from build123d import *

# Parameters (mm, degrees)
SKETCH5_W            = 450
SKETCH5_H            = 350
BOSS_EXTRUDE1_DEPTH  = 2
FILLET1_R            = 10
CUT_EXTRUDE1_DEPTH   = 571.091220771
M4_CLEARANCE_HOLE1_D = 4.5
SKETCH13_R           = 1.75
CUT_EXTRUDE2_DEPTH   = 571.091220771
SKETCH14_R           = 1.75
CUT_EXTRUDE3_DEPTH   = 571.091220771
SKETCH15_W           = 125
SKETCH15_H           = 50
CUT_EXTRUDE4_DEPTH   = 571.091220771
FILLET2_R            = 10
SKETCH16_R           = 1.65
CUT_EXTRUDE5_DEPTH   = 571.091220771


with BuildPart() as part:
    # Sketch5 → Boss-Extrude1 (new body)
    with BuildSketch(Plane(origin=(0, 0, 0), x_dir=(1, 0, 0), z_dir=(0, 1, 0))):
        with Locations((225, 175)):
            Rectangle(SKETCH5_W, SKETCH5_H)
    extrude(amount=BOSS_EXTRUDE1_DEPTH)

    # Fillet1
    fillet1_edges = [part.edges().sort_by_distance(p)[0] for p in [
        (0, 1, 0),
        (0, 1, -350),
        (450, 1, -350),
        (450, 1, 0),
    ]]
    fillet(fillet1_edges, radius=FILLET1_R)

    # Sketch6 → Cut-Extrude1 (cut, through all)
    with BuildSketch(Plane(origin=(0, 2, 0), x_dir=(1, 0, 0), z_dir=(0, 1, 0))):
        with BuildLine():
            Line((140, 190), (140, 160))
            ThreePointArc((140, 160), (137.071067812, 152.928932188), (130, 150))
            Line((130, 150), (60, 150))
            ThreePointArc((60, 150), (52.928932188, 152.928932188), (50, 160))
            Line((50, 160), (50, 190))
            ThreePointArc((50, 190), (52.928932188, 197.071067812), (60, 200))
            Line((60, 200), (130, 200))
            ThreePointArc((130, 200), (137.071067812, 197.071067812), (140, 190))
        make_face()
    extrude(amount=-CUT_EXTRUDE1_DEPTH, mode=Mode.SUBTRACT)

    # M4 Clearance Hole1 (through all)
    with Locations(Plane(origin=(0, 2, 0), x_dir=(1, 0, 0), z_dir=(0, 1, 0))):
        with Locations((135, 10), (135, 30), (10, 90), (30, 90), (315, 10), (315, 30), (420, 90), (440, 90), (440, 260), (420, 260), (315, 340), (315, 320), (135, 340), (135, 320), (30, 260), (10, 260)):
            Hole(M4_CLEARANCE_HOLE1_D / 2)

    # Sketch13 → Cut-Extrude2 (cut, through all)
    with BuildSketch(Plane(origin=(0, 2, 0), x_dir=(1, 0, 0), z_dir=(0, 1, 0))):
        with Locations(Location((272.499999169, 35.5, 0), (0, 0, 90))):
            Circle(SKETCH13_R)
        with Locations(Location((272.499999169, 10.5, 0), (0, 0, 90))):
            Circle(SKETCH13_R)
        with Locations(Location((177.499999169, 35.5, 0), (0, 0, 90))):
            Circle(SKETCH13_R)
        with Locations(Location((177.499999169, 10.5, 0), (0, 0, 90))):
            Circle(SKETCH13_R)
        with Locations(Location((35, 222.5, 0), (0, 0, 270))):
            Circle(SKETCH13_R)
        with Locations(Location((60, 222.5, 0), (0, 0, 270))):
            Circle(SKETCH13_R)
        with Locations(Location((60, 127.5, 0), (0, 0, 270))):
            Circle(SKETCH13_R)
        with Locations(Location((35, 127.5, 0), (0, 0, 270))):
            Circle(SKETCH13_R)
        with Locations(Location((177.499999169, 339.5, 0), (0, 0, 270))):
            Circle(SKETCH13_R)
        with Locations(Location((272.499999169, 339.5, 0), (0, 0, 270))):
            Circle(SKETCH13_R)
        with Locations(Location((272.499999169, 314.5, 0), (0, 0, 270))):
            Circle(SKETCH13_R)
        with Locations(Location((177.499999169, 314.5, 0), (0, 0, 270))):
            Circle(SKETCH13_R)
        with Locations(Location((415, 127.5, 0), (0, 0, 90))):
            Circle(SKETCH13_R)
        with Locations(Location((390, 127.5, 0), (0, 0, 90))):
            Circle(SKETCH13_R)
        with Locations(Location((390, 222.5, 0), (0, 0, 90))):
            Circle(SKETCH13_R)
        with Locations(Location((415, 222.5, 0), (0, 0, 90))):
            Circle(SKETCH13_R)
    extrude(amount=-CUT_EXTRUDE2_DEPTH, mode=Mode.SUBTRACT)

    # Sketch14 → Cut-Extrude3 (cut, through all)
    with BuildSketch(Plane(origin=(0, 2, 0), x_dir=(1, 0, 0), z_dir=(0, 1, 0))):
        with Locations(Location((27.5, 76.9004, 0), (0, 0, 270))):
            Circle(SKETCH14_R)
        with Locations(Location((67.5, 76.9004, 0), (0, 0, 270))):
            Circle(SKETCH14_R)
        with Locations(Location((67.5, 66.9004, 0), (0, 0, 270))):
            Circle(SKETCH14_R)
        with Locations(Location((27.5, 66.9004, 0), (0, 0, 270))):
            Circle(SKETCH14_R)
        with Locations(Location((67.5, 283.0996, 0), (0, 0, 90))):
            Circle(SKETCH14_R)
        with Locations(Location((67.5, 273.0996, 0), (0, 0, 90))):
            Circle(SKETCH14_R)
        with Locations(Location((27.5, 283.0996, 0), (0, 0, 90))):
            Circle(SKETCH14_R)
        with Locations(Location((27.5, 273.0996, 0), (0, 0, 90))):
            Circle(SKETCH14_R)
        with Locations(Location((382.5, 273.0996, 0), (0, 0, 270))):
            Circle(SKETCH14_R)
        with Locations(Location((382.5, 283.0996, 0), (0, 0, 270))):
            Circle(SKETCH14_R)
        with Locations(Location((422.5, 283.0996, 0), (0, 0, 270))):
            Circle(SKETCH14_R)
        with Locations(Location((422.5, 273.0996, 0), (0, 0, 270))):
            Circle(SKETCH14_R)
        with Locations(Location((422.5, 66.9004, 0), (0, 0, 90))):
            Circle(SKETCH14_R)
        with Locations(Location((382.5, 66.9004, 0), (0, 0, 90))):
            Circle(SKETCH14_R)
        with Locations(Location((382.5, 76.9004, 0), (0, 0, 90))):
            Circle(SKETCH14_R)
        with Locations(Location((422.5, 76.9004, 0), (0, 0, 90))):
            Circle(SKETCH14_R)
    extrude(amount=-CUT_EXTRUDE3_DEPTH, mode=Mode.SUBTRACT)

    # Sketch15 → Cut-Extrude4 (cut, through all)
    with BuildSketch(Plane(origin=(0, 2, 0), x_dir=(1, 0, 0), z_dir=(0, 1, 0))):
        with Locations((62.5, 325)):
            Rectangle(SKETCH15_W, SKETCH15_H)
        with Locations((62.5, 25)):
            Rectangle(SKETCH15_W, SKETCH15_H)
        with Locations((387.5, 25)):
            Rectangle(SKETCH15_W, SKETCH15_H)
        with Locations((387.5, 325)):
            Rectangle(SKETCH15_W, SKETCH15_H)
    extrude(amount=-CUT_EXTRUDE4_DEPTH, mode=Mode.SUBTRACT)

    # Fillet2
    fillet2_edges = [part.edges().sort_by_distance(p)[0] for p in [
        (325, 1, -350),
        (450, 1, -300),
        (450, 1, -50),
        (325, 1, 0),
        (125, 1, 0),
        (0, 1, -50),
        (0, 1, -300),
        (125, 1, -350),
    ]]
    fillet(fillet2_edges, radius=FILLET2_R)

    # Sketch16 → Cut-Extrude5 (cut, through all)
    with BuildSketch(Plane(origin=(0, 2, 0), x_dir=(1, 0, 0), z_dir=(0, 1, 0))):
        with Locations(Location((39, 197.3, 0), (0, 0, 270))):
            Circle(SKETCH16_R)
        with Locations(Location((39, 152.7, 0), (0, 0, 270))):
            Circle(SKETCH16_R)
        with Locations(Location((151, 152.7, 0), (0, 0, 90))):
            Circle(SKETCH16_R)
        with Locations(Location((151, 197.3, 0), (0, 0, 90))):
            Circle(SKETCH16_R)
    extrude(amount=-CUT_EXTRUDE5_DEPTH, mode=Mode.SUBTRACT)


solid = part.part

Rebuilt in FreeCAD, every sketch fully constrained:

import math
import FreeCAD as App
import Part
import Sketcher

V = App.Vector


def edges_at(feature, points):
    """Names of the edges that pass closest to the given points."""
    edges = feature.Shape.Edges
    near = lambda p: min(range(len(edges)), key=lambda i: edges[i].distToShape(Part.Vertex(*p))[0])
    return sorted({f"Edge{near(p) + 1}" for p in points})


def add_polygon(sketch, points):
    """Adds a closed chain of lines whose ends are joined by coincident constraints."""
    first, n = sketch.GeometryCount, len(points)
    for a, b in zip(points, points[1:] + points[:1]):
        sketch.addGeometry(Part.LineSegment(App.Vector(*a, 0), App.Vector(*b, 0)), False)
    for i in range(n):
        sketch.addConstraint(Sketcher.Constraint("Coincident", first + i, 2, first + (i + 1) % n, 1))

doc = App.newDocument("Part")
body = doc.addObject("PartDesign::Body", "Body")

sketch1 = body.newObject("Sketcher::SketchObject", "Sketch")
sketch1.AttachmentSupport = (doc.getObject("XZ_Plane"), [""])
sketch1.MapMode = "FlatFace"
add_polygon(sketch1, [(0, -350), (0, 0), (450, 0), (450, -350)])
sketch1.addConstraint([
    Sketcher.Constraint("Vertical", 0),
    Sketcher.Constraint("Horizontal", 1),
    Sketcher.Constraint("Vertical", 2),
    Sketcher.Constraint("Horizontal", 3),
    Sketcher.Constraint("Coincident", 0, 2, -1, 1),
    Sketcher.Constraint("DistanceX", 1, 1, 1, 2, 450.0),
    Sketcher.Constraint("DistanceY", 0, 1, 0, 2, 350.0),
])
pad1 = body.newObject("PartDesign::Pad", "Pad")
pad1.Profile = sketch1
pad1.Length = 2
pad1.Reversed = True
doc.recompute()

fillet = body.newObject("PartDesign::Fillet", "Fillet")
fillet.Base = (pad1, edges_at(pad1, [
    (0, 1, 0),
    (0, 1, -350),
    (450, 1, -350),
    (450, 1, 0),
]))
fillet.Radius = 10

sketch2 = body.newObject("Sketcher::SketchObject", "Sketch001")
sketch2.AttachmentSupport = (doc.getObject("XZ_Plane"), [""])
sketch2.MapMode = "FlatFace"
sketch2.AttachmentOffset = App.Placement(V(0, 0, -2), App.Rotation())
sketch2.addGeometry([
    Part.LineSegment(V(140, -160, 0), V(140, -190, 0)),
    Part.ArcOfCircle(Part.Circle(V(130, -190, 0), V(0, 0, 1), 10), math.radians(-90), math.radians(0)),
    Part.LineSegment(V(130, -200, 0), V(60, -200, 0)),
    Part.ArcOfCircle(Part.Circle(V(60, -190, 0), V(0, 0, 1), 10), math.radians(180), math.radians(270)),
    Part.LineSegment(V(50, -190, 0), V(50, -160, 0)),
    Part.ArcOfCircle(Part.Circle(V(60, -160, 0), V(0, 0, 1), 10), math.radians(90), math.radians(180)),
    Part.LineSegment(V(60, -150, 0), V(130, -150, 0)),
    Part.ArcOfCircle(Part.Circle(V(130, -160, 0), V(0, 0, 1), 10), math.radians(0), math.radians(90)),
], False)
sketch2.addConstraint([
    Sketcher.Constraint("Tangent", 0, 2, 1, 2),
    Sketcher.Constraint("Tangent", 1, 1, 2, 1),
    Sketcher.Constraint("Tangent", 2, 2, 3, 2),
    Sketcher.Constraint("Tangent", 3, 1, 4, 1),
    Sketcher.Constraint("Tangent", 4, 2, 5, 2),
    Sketcher.Constraint("Tangent", 5, 1, 6, 1),
    Sketcher.Constraint("Tangent", 6, 2, 7, 2),
    Sketcher.Constraint("Tangent", 7, 1, 0, 1),
    Sketcher.Constraint("Vertical", 0),
    Sketcher.Constraint("Horizontal", 2),
    Sketcher.Constraint("Vertical", 4),
    Sketcher.Constraint("Horizontal", 6),
    Sketcher.Constraint("Equal", 1, 3),
    Sketcher.Constraint("Equal", 3, 5),
    Sketcher.Constraint("Equal", 5, 7),
    Sketcher.Constraint("Radius", 1, 10.0),
    Sketcher.Constraint("DistanceX", 2, 2, 2, 1, 70.0),
    Sketcher.Constraint("DistanceY", 0, 2, 0, 1, 30.0),
    Sketcher.Constraint("DistanceX", -1, 1, 1, 3, 130.0),
    Sketcher.Constraint("DistanceY", 1, 3, -1, 1, 190.0),
])
pocket1 = body.newObject("PartDesign::Pocket", "Pocket")
pocket1.Profile = sketch2
pocket1.Type = "ThroughAll"
pocket1.Reversed = True

sketch3 = body.newObject("Sketcher::SketchObject", "Sketch002")
sketch3.AttachmentSupport = (doc.getObject("XZ_Plane"), [""])
sketch3.MapMode = "FlatFace"
sketch3.AttachmentOffset = App.Placement(V(0, 0, -2), App.Rotation())
sketch3.addGeometry([
    Part.Circle(V(135, -10, 0), V(0, 0, 1), 2.2),
    Part.Circle(V(135, -30, 0), V(0, 0, 1), 2.2),
    Part.Circle(V(10, -90, 0), V(0, 0, 1), 2.2),
    Part.Circle(V(30, -90, 0), V(0, 0, 1), 2.2),
    Part.Circle(V(315, -10, 0), V(0, 0, 1), 2.2),
    Part.Circle(V(315, -30, 0), V(0, 0, 1), 2.2),
    Part.Circle(V(420, -90, 0), V(0, 0, 1), 2.2),
    Part.Circle(V(440, -90, 0), V(0, 0, 1), 2.2),
    Part.Circle(V(440, -260, 0), V(0, 0, 1), 2.2),
    Part.Circle(V(420, -260, 0), V(0, 0, 1), 2.2),
    Part.Circle(V(315, -340, 0), V(0, 0, 1), 2.2),
    Part.Circle(V(315, -320, 0), V(0, 0, 1), 2.2),
    Part.Circle(V(135, -340, 0), V(0, 0, 1), 2.2),
    Part.Circle(V(135, -320, 0), V(0, 0, 1), 2.2),
    Part.Circle(V(30, -260, 0), V(0, 0, 1), 2.2),
    Part.Circle(V(10, -260, 0), V(0, 0, 1), 2.2),
], False)
sketch3.addConstraint([
    Sketcher.Constraint("Equal", 0, 1),
    Sketcher.Constraint("Equal", 1, 2),
    Sketcher.Constraint("Equal", 2, 3),
    Sketcher.Constraint("Equal", 3, 4),
    Sketcher.Constraint("Equal", 4, 5),
    Sketcher.Constraint("Equal", 5, 6),
    Sketcher.Constraint("Equal", 6, 7),
    Sketcher.Constraint("Equal", 7, 8),
    Sketcher.Constraint("Equal", 8, 9),
    Sketcher.Constraint("Equal", 9, 10),
    Sketcher.Constraint("Equal", 10, 11),
    Sketcher.Constraint("Equal", 11, 12),
    Sketcher.Constraint("Equal", 12, 13),
    Sketcher.Constraint("Equal", 13, 14),
    Sketcher.Constraint("Equal", 14, 15),
    Sketcher.Constraint("Horizontal", 2, 3, 3, 3),
    Sketcher.Constraint("Horizontal", 0, 3, 4, 3),
    Sketcher.Constraint("Horizontal", 1, 3, 5, 3),
    Sketcher.Constraint("Horizontal", 3, 3, 6, 3),
    Sketcher.Constraint("Horizontal", 6, 3, 7, 3),
    Sketcher.Constraint("Horizontal", 8, 3, 9, 3),
    Sketcher.Constraint("Horizontal", 10, 3, 12, 3),
    Sketcher.Constraint("Horizontal", 11, 3, 13, 3),
    Sketcher.Constraint("Horizontal", 9, 3, 14, 3),
    Sketcher.Constraint("Horizontal", 14, 3, 15, 3),
    Sketcher.Constraint("Vertical", 0, 3, 1, 3),
    Sketcher.Constraint("Vertical", 4, 3, 5, 3),
    Sketcher.Constraint("Vertical", 7, 3, 8, 3),
    Sketcher.Constraint("Vertical", 6, 3, 9, 3),
    Sketcher.Constraint("Vertical", 5, 3, 10, 3),
    Sketcher.Constraint("Vertical", 10, 3, 11, 3),
    Sketcher.Constraint("Vertical", 1, 3, 12, 3),
    Sketcher.Constraint("Vertical", 12, 3, 13, 3),
    Sketcher.Constraint("Vertical", 3, 3, 14, 3),
    Sketcher.Constraint("Vertical", 2, 3, 15, 3),
    Sketcher.Constraint("Diameter", 0, 4.5),
    Sketcher.Constraint("DistanceX", -1, 1, 0, 3, 135.0),
    Sketcher.Constraint("DistanceY", 0, 3, -1, 1, 10.0),
    Sketcher.Constraint("DistanceY", 1, 3, -1, 1, 30.0),
    Sketcher.Constraint("DistanceX", -1, 1, 2, 3, 10.0),
    Sketcher.Constraint("DistanceY", 2, 3, -1, 1, 90.0),
    Sketcher.Constraint("DistanceX", -1, 1, 3, 3, 30.0),
    Sketcher.Constraint("DistanceX", -1, 1, 4, 3, 315.0),
    Sketcher.Constraint("DistanceX", -1, 1, 6, 3, 420.0),
    Sketcher.Constraint("DistanceX", -1, 1, 7, 3, 440.0),
    Sketcher.Constraint("DistanceY", 8, 3, -1, 1, 260.0),
    Sketcher.Constraint("DistanceY", 10, 3, -1, 1, 340.0),
    Sketcher.Constraint("DistanceY", 11, 3, -1, 1, 320.0),
])
doc.recompute()
hole = body.newObject("PartDesign::Hole", "Hole")
hole.Profile = sketch3
hole.ThreadType = "None"
hole.Diameter = 4.5
hole.DepthType = "ThroughAll"
hole.Reversed = True

sketch4 = body.newObject("Sketcher::SketchObject", "Sketch003")
sketch4.AttachmentSupport = (doc.getObject("XZ_Plane"), [""])
sketch4.MapMode = "FlatFace"
sketch4.AttachmentOffset = App.Placement(V(0, 0, -2), App.Rotation())
sketch4.addGeometry([
    Part.Circle(V(272.5, -35.5, 0), V(0, 0, 1), 1.8),
    Part.Circle(V(272.5, -10.5, 0), V(0, 0, 1), 1.8),
    Part.Circle(V(177.5, -35.5, 0), V(0, 0, 1), 1.8),
    Part.Circle(V(177.5, -10.5, 0), V(0, 0, 1), 1.8),
    Part.Circle(V(35, -222.5, 0), V(0, 0, 1), 1.8),
    Part.Circle(V(60, -222.5, 0), V(0, 0, 1), 1.8),
    Part.Circle(V(60, -127.5, 0), V(0, 0, 1), 1.8),
    Part.Circle(V(35, -127.5, 0), V(0, 0, 1), 1.8),
    Part.Circle(V(177.5, -339.5, 0), V(0, 0, 1), 1.8),
    Part.Circle(V(272.5, -339.5, 0), V(0, 0, 1), 1.8),
    Part.Circle(V(272.5, -314.5, 0), V(0, 0, 1), 1.8),
    Part.Circle(V(177.5, -314.5, 0), V(0, 0, 1), 1.8),
    Part.Circle(V(415, -127.5, 0), V(0, 0, 1), 1.8),
    Part.Circle(V(390, -127.5, 0), V(0, 0, 1), 1.8),
    Part.Circle(V(390, -222.5, 0), V(0, 0, 1), 1.8),
    Part.Circle(V(415, -222.5, 0), V(0, 0, 1), 1.8),
], False)
sketch4.addConstraint([
    Sketcher.Constraint("Equal", 0, 1),
    Sketcher.Constraint("Equal", 1, 2),
    Sketcher.Constraint("Equal", 2, 3),
    Sketcher.Constraint("Equal", 3, 4),
    Sketcher.Constraint("Equal", 4, 5),
    Sketcher.Constraint("Equal", 5, 6),
    Sketcher.Constraint("Equal", 6, 7),
    Sketcher.Constraint("Equal", 7, 8),
    Sketcher.Constraint("Equal", 8, 9),
    Sketcher.Constraint("Equal", 9, 10),
    Sketcher.Constraint("Equal", 10, 11),
    Sketcher.Constraint("Equal", 11, 12),
    Sketcher.Constraint("Equal", 12, 13),
    Sketcher.Constraint("Equal", 13, 14),
    Sketcher.Constraint("Equal", 14, 15),
    Sketcher.Constraint("Horizontal", 0, 3, 2, 3),
    Sketcher.Constraint("Horizontal", 1, 3, 3, 3),
    Sketcher.Constraint("Horizontal", 4, 3, 5, 3),
    Sketcher.Constraint("Horizontal", 6, 3, 7, 3),
    Sketcher.Constraint("Horizontal", 8, 3, 9, 3),
    Sketcher.Constraint("Horizontal", 10, 3, 11, 3),
    Sketcher.Constraint("Horizontal", 7, 3, 12, 3),
    Sketcher.Constraint("Horizontal", 12, 3, 13, 3),
    Sketcher.Constraint("Horizontal", 5, 3, 14, 3),
    Sketcher.Constraint("Horizontal", 14, 3, 15, 3),
    Sketcher.Constraint("Vertical", 0, 3, 1, 3),
    Sketcher.Constraint("Vertical", 2, 3, 3, 3),
    Sketcher.Constraint("Vertical", 5, 3, 6, 3),
    Sketcher.Constraint("Vertical", 4, 3, 7, 3),
    Sketcher.Constraint("Vertical", 3, 3, 8, 3),
    Sketcher.Constraint("Vertical", 1, 3, 9, 3),
    Sketcher.Constraint("Vertical", 9, 3, 10, 3),
    Sketcher.Constraint("Vertical", 8, 3, 11, 3),
    Sketcher.Constraint("Vertical", 13, 3, 14, 3),
    Sketcher.Constraint("Vertical", 12, 3, 15, 3),
    Sketcher.Constraint("Diameter", 0, 3.5),
    Sketcher.Constraint("DistanceX", -1, 1, 4, 3, 35.0),
    Sketcher.Constraint("DistanceX", -1, 1, 5, 3, 60.0),
    Sketcher.Constraint("DistanceX", -1, 1, 12, 3, 415.0),
    Sketcher.Constraint("DistanceX", -1, 1, 13, 3, 390.0),
    Sketcher.Constraint("DistanceY", 0, 3, 1, 3, 25.0),
    Sketcher.Constraint("DistanceX", 2, 3, 0, 3, 95.0),
    Sketcher.Constraint("DistanceY", 4, 3, 2, 3, 187.0),
    Sketcher.Constraint("DistanceY", 5, 3, 6, 3, 95.0),
    Sketcher.Constraint("DistanceY", 8, 3, 5, 3, 117.0),
    Sketcher.Constraint("DistanceY", 9, 3, 10, 3, 25.0),
    Sketcher.Constraint("DistanceX", -1, 1, 0, 3, 272.499999),
    Sketcher.Constraint("DistanceY", 0, 3, -1, 1, 35.5),
])
pocket2 = body.newObject("PartDesign::Pocket", "Pocket001")
pocket2.Profile = sketch4
pocket2.Type = "ThroughAll"
pocket2.Reversed = True

sketch5 = body.newObject("Sketcher::SketchObject", "Sketch004")
sketch5.AttachmentSupport = (doc.getObject("XZ_Plane"), [""])
sketch5.MapMode = "FlatFace"
sketch5.AttachmentOffset = App.Placement(V(0, 0, -2), App.Rotation())
sketch5.addGeometry([
    Part.Circle(V(27.5, -76.9, 0), V(0, 0, 1), 1.8),
    Part.Circle(V(67.5, -76.9, 0), V(0, 0, 1), 1.8),
    Part.Circle(V(67.5, -66.9, 0), V(0, 0, 1), 1.8),
    Part.Circle(V(27.5, -66.9, 0), V(0, 0, 1), 1.8),
    Part.Circle(V(67.5, -283.1, 0), V(0, 0, 1), 1.8),
    Part.Circle(V(67.5, -273.1, 0), V(0, 0, 1), 1.8),
    Part.Circle(V(27.5, -283.1, 0), V(0, 0, 1), 1.8),
    Part.Circle(V(27.5, -273.1, 0), V(0, 0, 1), 1.8),
    Part.Circle(V(382.5, -273.1, 0), V(0, 0, 1), 1.8),
    Part.Circle(V(382.5, -283.1, 0), V(0, 0, 1), 1.8),
    Part.Circle(V(422.5, -283.1, 0), V(0, 0, 1), 1.8),
    Part.Circle(V(422.5, -273.1, 0), V(0, 0, 1), 1.8),
    Part.Circle(V(422.5, -66.9, 0), V(0, 0, 1), 1.8),
    Part.Circle(V(382.5, -66.9, 0), V(0, 0, 1), 1.8),
    Part.Circle(V(382.5, -76.9, 0), V(0, 0, 1), 1.8),
    Part.Circle(V(422.5, -76.9, 0), V(0, 0, 1), 1.8),
], False)
sketch5.addConstraint([
    Sketcher.Constraint("Equal", 0, 1),
    Sketcher.Constraint("Equal", 1, 2),
    Sketcher.Constraint("Equal", 2, 3),
    Sketcher.Constraint("Equal", 3, 4),
    Sketcher.Constraint("Equal", 4, 5),
    Sketcher.Constraint("Equal", 5, 6),
    Sketcher.Constraint("Equal", 6, 7),
    Sketcher.Constraint("Equal", 7, 8),
    Sketcher.Constraint("Equal", 8, 9),
    Sketcher.Constraint("Equal", 9, 10),
    Sketcher.Constraint("Equal", 10, 11),
    Sketcher.Constraint("Equal", 11, 12),
    Sketcher.Constraint("Equal", 12, 13),
    Sketcher.Constraint("Equal", 13, 14),
    Sketcher.Constraint("Equal", 14, 15),
    Sketcher.Constraint("Horizontal", 0, 3, 1, 3),
    Sketcher.Constraint("Horizontal", 2, 3, 3, 3),
    Sketcher.Constraint("Horizontal", 4, 3, 6, 3),
    Sketcher.Constraint("Horizontal", 5, 3, 7, 3),
    Sketcher.Constraint("Horizontal", 7, 3, 8, 3),
    Sketcher.Constraint("Horizontal", 6, 3, 9, 3),
    Sketcher.Constraint("Horizontal", 9, 3, 10, 3),
    Sketcher.Constraint("Horizontal", 8, 3, 11, 3),
    Sketcher.Constraint("Horizontal", 3, 3, 12, 3),
    Sketcher.Constraint("Horizontal", 12, 3, 13, 3),
    Sketcher.Constraint("Horizontal", 1, 3, 14, 3),
    Sketcher.Constraint("Horizontal", 14, 3, 15, 3),
    Sketcher.Constraint("Vertical", 1, 3, 2, 3),
    Sketcher.Constraint("Vertical", 0, 3, 3, 3),
    Sketcher.Constraint("Vertical", 2, 3, 4, 3),
    Sketcher.Constraint("Vertical", 4, 3, 5, 3),
    Sketcher.Constraint("Vertical", 3, 3, 6, 3),
    Sketcher.Constraint("Vertical", 6, 3, 7, 3),
    Sketcher.Constraint("Vertical", 8, 3, 9, 3),
    Sketcher.Constraint("Vertical", 10, 3, 11, 3),
    Sketcher.Constraint("Vertical", 11, 3, 12, 3),
    Sketcher.Constraint("Vertical", 9, 3, 13, 3),
    Sketcher.Constraint("Vertical", 13, 3, 14, 3),
    Sketcher.Constraint("Vertical", 12, 3, 15, 3),
    Sketcher.Constraint("Diameter", 0, 3.5),
    Sketcher.Constraint("DistanceX", 0, 3, 1, 3, 40.0),
    Sketcher.Constraint("DistanceY", 1, 3, 2, 3, 10.0),
    Sketcher.Constraint("DistanceY", 4, 3, 5, 3, 10.0),
    Sketcher.Constraint("DistanceX", 5, 3, 8, 3, 315.0),
    Sketcher.Constraint("DistanceX", 9, 3, 10, 3, 40.0),
    Sketcher.Constraint("DistanceX", -1, 1, 0, 3, 27.5),
    Sketcher.Constraint("DistanceY", 0, 3, -1, 1, 76.9004),
    Sketcher.Constraint("DistanceY", 4, 3, -1, 1, 283.0996),
])
pocket3 = body.newObject("PartDesign::Pocket", "Pocket002")
pocket3.Profile = sketch5
pocket3.Type = "ThroughAll"
pocket3.Reversed = True

sketch6 = body.newObject("Sketcher::SketchObject", "Sketch005")
sketch6.AttachmentSupport = (doc.getObject("XZ_Plane"), [""])
sketch6.MapMode = "FlatFace"
sketch6.AttachmentOffset = App.Placement(V(0, 0, -2), App.Rotation())
add_polygon(sketch6, [(0, -350), (0, -300), (125, -300), (125, -350)])
add_polygon(sketch6, [(0, -50), (0, 0), (125, 0), (125, -50)])
add_polygon(sketch6, [(325, -50), (325, 0), (450, 0), (450, -50)])
add_polygon(sketch6, [(325, -350), (325, -300), (450, -300), (450, -350)])
sketch6.addConstraint([
    Sketcher.Constraint("Vertical", 0),
    Sketcher.Constraint("Horizontal", 1),
    Sketcher.Constraint("Vertical", 2),
    Sketcher.Constraint("Horizontal", 3),
    Sketcher.Constraint("Vertical", 4),
    Sketcher.Constraint("Horizontal", 5),
    Sketcher.Constraint("Vertical", 6),
    Sketcher.Constraint("Horizontal", 7),
    Sketcher.Constraint("Vertical", 8),
    Sketcher.Constraint("Horizontal", 9),
    Sketcher.Constraint("Vertical", 10),
    Sketcher.Constraint("Horizontal", 11),
    Sketcher.Constraint("Vertical", 12),
    Sketcher.Constraint("Horizontal", 13),
    Sketcher.Constraint("Vertical", 14),
    Sketcher.Constraint("Horizontal", 15),
    Sketcher.Constraint("Coincident", 4, 2, -1, 1),
    Sketcher.Constraint("PointOnObject", 0, 2, -2),
    Sketcher.Constraint("PointOnObject", 8, 2, -1),
    Sketcher.Constraint("Horizontal", 7, 2, 10, 2),
    Sketcher.Constraint("Horizontal", 1, 2, 12, 2),
    Sketcher.Constraint("Horizontal", 3, 2, 14, 2),
    Sketcher.Constraint("Vertical", 2, 2, 5, 2),
    Sketcher.Constraint("Vertical", 11, 2, 12, 2),
    Sketcher.Constraint("Vertical", 10, 2, 13, 2),
    Sketcher.Constraint("Equal", 7, 9),
    Sketcher.Constraint("Equal", 2, 4),
    Sketcher.Constraint("DistanceX", 1, 1, 1, 2, 125.0),
    Sketcher.Constraint("DistanceY", 0, 1, 0, 2, 50.0),
    Sketcher.Constraint("DistanceY", 0, 2, -1, 1, 300.0),
    Sketcher.Constraint("DistanceX", -1, 1, 8, 2, 325.0),
])
pocket4 = body.newObject("PartDesign::Pocket", "Pocket003")
pocket4.Profile = sketch6
pocket4.Type = "ThroughAll"
pocket4.Reversed = True
doc.recompute()

fillet2 = body.newObject("PartDesign::Fillet", "Fillet001")
fillet2.Base = (pocket4, edges_at(pocket4, [
    (325, 1, -350),
    (450, 1, -300),
    (450, 1, -50),
    (325, 1, 0),
    (125, 1, 0),
    (0, 1, -50),
    (0, 1, -300),
    (125, 1, -350),
]))
fillet2.Radius = 10

sketch7 = body.newObject("Sketcher::SketchObject", "Sketch006")
sketch7.AttachmentSupport = (doc.getObject("XZ_Plane"), [""])
sketch7.MapMode = "FlatFace"
sketch7.AttachmentOffset = App.Placement(V(0, 0, -2), App.Rotation())
sketch7.addGeometry([
    Part.Circle(V(39, -197.3, 0), V(0, 0, 1), 1.6),
    Part.Circle(V(39, -152.7, 0), V(0, 0, 1), 1.6),
    Part.Circle(V(151, -152.7, 0), V(0, 0, 1), 1.6),
    Part.Circle(V(151, -197.3, 0), V(0, 0, 1), 1.6),
], False)
sketch7.addConstraint([
    Sketcher.Constraint("Equal", 0, 1),
    Sketcher.Constraint("Equal", 1, 2),
    Sketcher.Constraint("Equal", 2, 3),
    Sketcher.Constraint("Horizontal", 1, 3, 2, 3),
    Sketcher.Constraint("Horizontal", 0, 3, 3, 3),
    Sketcher.Constraint("Vertical", 0, 3, 1, 3),
    Sketcher.Constraint("Vertical", 2, 3, 3, 3),
    Sketcher.Constraint("Diameter", 0, 3.3),
    Sketcher.Constraint("DistanceX", -1, 1, 0, 3, 39.0),
    Sketcher.Constraint("DistanceX", -1, 1, 2, 3, 151.0),
    Sketcher.Constraint("DistanceY", 0, 3, -1, 1, 197.3),
    Sketcher.Constraint("DistanceY", 1, 3, -1, 1, 152.7),
])
pocket5 = body.newObject("PartDesign::Pocket", "Pocket004")
pocket5.Profile = sketch7
pocket5.Type = "ThroughAll"
pocket5.Reversed = True

doc.recompute()
